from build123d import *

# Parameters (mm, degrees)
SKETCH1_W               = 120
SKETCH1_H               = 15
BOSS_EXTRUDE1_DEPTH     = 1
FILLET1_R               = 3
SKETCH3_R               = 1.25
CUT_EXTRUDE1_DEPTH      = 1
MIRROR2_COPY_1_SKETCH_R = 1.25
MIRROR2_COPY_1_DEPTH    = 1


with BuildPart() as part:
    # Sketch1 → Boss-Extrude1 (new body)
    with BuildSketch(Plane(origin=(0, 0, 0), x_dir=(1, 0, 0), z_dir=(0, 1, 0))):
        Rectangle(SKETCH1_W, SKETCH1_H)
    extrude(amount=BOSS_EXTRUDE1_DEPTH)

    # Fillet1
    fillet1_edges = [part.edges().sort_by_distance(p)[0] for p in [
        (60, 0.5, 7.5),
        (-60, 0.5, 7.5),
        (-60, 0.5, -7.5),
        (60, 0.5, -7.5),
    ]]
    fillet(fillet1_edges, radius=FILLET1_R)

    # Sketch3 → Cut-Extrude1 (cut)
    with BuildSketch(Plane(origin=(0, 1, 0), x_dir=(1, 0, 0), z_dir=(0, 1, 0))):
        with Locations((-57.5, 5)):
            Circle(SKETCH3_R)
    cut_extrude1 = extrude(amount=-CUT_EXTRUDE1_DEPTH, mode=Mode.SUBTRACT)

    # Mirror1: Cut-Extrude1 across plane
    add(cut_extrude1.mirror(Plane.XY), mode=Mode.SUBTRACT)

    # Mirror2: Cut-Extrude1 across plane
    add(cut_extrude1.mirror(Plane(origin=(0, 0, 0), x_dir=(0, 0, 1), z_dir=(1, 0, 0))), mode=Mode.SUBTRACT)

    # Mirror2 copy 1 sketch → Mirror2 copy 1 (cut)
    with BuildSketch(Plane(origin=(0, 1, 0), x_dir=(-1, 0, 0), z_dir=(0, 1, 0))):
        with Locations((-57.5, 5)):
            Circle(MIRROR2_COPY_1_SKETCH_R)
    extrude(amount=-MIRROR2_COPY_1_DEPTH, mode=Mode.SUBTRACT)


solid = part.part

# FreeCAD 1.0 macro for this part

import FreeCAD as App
import Part
import Sketcher
from FreeCAD import Vector


def edges_at(feature, points):
    """Names of the edges that pass closest to the given points."""
    edges = feature.Shape.Edges
    near = lambda p: min(range(len(edges)), key=lambda i: edges[i].distToShape(Part.Vertex(*p))[0])
    return sorted({f"Edge{near(p) + 1}" for p in points})

doc = App.newDocument("Part")
body = doc.addObject("PartDesign::Body", "Body")

# Sketch on XZ plane
sketch1 = body.newObject("Sketcher::SketchObject", "Sketch")
sketch1.AttachmentSupport = (doc.getObject("XZ_Plane"), [""])
sketch1.MapMode = "FlatFace"
sketch1.addGeometry(Part.LineSegment(Vector(-60, -7.5, 0), Vector(-60, 7.5, 0)), False)
sketch1.addGeometry(Part.LineSegment(Vector(-60, 7.5, 0), Vector(60, 7.5, 0)), False)
sketch1.addGeometry(Part.LineSegment(Vector(60, 7.5, 0), Vector(60, -7.5, 0)), False)
sketch1.addGeometry(Part.LineSegment(Vector(60, -7.5, 0), Vector(-60, -7.5, 0)), False)
sketch1.addConstraint(Sketcher.Constraint("Coincident", 0, 2, 1, 1))
sketch1.addConstraint(Sketcher.Constraint("Coincident", 1, 2, 2, 1))
sketch1.addConstraint(Sketcher.Constraint("Coincident", 2, 2, 3, 1))
sketch1.addConstraint(Sketcher.Constraint("Coincident", 3, 2, 0, 1))
sketch1.addConstraint(Sketcher.Constraint("Vertical", 0))
sketch1.addConstraint(Sketcher.Constraint("Horizontal", 1))
sketch1.addConstraint(Sketcher.Constraint("Vertical", 2))
sketch1.addConstraint(Sketcher.Constraint("Horizontal", 3))
sketch1.addConstraint(Sketcher.Constraint("Symmetric", 0, 2, 2, 2, -1, 1))
sketch1.addConstraint(Sketcher.Constraint("DistanceX", 1, 1, 1, 2, 120.0))
sketch1.addConstraint(Sketcher.Constraint("DistanceY", 0, 1, 0, 2, 15.0))
pad1 = body.newObject("PartDesign::Pad", "Pad")
pad1.Profile = sketch1
pad1.Length = 1
pad1.Reversed = True
doc.recompute()

fillet = body.newObject("PartDesign::Fillet", "Fillet")
fillet.Base = (pad1, edges_at(pad1, [
    (60, 0.5, 7.5),
    (-60, 0.5, 7.5),
    (-60, 0.5, -7.5),
    (60, 0.5, -7.5),
]))
fillet.Radius = 3

# Sketch on XZ plane
sketch2 = body.newObject("Sketcher::SketchObject", "Sketch001")
sketch2.AttachmentSupport = (doc.getObject("XZ_Plane"), [""])
sketch2.MapMode = "FlatFace"
sketch2.AttachmentOffset = App.Placement(Vector(0, 0, -1), App.Rotation())
sketch2.addGeometry(Part.Circle(Vector(-57.5, -5, 0), Vector(0, 0, 1), 1.25), False)
sketch2.addConstraint(Sketcher.Constraint("Diameter", 0, 2.5))
sketch2.addConstraint(Sketcher.Constraint("DistanceY", 0, 3, -1, 1, 5.0))
sketch2.addConstraint(Sketcher.Constraint("DistanceX", 0, 3, -1, 1, 57.5))
pocket1 = body.newObject("PartDesign::Pocket", "Pocket")
pocket1.Profile = sketch2
pocket1.Length = 1
pocket1.Reversed = True
doc.recompute()

mirrored = body.newObject("PartDesign::Mirrored", "Mirrored")
mirrored.Originals = [pocket1]
mirrored.MirrorPlane = (doc.getObject("XY_Plane"), [""])
body.Tip = mirrored
doc.recompute()

mirrored2 = body.newObject("PartDesign::Mirrored", "Mirrored001")
mirrored2.Originals = [pocket1]
mirrored2.MirrorPlane = (doc.getObject("YZ_Plane"), [""])
body.Tip = mirrored2

# Sketch on XZ plane
sketch3 = body.newObject("Sketcher::SketchObject", "Sketch002")
sketch3.AttachmentSupport = (doc.getObject("XZ_Plane"), [""])
sketch3.MapMode = "FlatFace"
sketch3.AttachmentOffset = App.Placement(Vector(0, 0, -1), App.Rotation())
sketch3.addGeometry(Part.Circle(Vector(57.5, 5, 0), Vector(0, 0, 1), 1.25), False)
sketch3.addConstraint(Sketcher.Constraint("Diameter", 0, 2.5))
sketch3.addConstraint(Sketcher.Constraint("DistanceY", -1, 1, 0, 3, 5.0))
sketch3.addConstraint(Sketcher.Constraint("DistanceX", -1, 1, 0, 3, 57.5))
pocket2 = body.newObject("PartDesign::Pocket", "Pocket001")
pocket2.Profile = sketch3
pocket2.Length = 1
pocket2.Reversed = True

doc.recompute()
